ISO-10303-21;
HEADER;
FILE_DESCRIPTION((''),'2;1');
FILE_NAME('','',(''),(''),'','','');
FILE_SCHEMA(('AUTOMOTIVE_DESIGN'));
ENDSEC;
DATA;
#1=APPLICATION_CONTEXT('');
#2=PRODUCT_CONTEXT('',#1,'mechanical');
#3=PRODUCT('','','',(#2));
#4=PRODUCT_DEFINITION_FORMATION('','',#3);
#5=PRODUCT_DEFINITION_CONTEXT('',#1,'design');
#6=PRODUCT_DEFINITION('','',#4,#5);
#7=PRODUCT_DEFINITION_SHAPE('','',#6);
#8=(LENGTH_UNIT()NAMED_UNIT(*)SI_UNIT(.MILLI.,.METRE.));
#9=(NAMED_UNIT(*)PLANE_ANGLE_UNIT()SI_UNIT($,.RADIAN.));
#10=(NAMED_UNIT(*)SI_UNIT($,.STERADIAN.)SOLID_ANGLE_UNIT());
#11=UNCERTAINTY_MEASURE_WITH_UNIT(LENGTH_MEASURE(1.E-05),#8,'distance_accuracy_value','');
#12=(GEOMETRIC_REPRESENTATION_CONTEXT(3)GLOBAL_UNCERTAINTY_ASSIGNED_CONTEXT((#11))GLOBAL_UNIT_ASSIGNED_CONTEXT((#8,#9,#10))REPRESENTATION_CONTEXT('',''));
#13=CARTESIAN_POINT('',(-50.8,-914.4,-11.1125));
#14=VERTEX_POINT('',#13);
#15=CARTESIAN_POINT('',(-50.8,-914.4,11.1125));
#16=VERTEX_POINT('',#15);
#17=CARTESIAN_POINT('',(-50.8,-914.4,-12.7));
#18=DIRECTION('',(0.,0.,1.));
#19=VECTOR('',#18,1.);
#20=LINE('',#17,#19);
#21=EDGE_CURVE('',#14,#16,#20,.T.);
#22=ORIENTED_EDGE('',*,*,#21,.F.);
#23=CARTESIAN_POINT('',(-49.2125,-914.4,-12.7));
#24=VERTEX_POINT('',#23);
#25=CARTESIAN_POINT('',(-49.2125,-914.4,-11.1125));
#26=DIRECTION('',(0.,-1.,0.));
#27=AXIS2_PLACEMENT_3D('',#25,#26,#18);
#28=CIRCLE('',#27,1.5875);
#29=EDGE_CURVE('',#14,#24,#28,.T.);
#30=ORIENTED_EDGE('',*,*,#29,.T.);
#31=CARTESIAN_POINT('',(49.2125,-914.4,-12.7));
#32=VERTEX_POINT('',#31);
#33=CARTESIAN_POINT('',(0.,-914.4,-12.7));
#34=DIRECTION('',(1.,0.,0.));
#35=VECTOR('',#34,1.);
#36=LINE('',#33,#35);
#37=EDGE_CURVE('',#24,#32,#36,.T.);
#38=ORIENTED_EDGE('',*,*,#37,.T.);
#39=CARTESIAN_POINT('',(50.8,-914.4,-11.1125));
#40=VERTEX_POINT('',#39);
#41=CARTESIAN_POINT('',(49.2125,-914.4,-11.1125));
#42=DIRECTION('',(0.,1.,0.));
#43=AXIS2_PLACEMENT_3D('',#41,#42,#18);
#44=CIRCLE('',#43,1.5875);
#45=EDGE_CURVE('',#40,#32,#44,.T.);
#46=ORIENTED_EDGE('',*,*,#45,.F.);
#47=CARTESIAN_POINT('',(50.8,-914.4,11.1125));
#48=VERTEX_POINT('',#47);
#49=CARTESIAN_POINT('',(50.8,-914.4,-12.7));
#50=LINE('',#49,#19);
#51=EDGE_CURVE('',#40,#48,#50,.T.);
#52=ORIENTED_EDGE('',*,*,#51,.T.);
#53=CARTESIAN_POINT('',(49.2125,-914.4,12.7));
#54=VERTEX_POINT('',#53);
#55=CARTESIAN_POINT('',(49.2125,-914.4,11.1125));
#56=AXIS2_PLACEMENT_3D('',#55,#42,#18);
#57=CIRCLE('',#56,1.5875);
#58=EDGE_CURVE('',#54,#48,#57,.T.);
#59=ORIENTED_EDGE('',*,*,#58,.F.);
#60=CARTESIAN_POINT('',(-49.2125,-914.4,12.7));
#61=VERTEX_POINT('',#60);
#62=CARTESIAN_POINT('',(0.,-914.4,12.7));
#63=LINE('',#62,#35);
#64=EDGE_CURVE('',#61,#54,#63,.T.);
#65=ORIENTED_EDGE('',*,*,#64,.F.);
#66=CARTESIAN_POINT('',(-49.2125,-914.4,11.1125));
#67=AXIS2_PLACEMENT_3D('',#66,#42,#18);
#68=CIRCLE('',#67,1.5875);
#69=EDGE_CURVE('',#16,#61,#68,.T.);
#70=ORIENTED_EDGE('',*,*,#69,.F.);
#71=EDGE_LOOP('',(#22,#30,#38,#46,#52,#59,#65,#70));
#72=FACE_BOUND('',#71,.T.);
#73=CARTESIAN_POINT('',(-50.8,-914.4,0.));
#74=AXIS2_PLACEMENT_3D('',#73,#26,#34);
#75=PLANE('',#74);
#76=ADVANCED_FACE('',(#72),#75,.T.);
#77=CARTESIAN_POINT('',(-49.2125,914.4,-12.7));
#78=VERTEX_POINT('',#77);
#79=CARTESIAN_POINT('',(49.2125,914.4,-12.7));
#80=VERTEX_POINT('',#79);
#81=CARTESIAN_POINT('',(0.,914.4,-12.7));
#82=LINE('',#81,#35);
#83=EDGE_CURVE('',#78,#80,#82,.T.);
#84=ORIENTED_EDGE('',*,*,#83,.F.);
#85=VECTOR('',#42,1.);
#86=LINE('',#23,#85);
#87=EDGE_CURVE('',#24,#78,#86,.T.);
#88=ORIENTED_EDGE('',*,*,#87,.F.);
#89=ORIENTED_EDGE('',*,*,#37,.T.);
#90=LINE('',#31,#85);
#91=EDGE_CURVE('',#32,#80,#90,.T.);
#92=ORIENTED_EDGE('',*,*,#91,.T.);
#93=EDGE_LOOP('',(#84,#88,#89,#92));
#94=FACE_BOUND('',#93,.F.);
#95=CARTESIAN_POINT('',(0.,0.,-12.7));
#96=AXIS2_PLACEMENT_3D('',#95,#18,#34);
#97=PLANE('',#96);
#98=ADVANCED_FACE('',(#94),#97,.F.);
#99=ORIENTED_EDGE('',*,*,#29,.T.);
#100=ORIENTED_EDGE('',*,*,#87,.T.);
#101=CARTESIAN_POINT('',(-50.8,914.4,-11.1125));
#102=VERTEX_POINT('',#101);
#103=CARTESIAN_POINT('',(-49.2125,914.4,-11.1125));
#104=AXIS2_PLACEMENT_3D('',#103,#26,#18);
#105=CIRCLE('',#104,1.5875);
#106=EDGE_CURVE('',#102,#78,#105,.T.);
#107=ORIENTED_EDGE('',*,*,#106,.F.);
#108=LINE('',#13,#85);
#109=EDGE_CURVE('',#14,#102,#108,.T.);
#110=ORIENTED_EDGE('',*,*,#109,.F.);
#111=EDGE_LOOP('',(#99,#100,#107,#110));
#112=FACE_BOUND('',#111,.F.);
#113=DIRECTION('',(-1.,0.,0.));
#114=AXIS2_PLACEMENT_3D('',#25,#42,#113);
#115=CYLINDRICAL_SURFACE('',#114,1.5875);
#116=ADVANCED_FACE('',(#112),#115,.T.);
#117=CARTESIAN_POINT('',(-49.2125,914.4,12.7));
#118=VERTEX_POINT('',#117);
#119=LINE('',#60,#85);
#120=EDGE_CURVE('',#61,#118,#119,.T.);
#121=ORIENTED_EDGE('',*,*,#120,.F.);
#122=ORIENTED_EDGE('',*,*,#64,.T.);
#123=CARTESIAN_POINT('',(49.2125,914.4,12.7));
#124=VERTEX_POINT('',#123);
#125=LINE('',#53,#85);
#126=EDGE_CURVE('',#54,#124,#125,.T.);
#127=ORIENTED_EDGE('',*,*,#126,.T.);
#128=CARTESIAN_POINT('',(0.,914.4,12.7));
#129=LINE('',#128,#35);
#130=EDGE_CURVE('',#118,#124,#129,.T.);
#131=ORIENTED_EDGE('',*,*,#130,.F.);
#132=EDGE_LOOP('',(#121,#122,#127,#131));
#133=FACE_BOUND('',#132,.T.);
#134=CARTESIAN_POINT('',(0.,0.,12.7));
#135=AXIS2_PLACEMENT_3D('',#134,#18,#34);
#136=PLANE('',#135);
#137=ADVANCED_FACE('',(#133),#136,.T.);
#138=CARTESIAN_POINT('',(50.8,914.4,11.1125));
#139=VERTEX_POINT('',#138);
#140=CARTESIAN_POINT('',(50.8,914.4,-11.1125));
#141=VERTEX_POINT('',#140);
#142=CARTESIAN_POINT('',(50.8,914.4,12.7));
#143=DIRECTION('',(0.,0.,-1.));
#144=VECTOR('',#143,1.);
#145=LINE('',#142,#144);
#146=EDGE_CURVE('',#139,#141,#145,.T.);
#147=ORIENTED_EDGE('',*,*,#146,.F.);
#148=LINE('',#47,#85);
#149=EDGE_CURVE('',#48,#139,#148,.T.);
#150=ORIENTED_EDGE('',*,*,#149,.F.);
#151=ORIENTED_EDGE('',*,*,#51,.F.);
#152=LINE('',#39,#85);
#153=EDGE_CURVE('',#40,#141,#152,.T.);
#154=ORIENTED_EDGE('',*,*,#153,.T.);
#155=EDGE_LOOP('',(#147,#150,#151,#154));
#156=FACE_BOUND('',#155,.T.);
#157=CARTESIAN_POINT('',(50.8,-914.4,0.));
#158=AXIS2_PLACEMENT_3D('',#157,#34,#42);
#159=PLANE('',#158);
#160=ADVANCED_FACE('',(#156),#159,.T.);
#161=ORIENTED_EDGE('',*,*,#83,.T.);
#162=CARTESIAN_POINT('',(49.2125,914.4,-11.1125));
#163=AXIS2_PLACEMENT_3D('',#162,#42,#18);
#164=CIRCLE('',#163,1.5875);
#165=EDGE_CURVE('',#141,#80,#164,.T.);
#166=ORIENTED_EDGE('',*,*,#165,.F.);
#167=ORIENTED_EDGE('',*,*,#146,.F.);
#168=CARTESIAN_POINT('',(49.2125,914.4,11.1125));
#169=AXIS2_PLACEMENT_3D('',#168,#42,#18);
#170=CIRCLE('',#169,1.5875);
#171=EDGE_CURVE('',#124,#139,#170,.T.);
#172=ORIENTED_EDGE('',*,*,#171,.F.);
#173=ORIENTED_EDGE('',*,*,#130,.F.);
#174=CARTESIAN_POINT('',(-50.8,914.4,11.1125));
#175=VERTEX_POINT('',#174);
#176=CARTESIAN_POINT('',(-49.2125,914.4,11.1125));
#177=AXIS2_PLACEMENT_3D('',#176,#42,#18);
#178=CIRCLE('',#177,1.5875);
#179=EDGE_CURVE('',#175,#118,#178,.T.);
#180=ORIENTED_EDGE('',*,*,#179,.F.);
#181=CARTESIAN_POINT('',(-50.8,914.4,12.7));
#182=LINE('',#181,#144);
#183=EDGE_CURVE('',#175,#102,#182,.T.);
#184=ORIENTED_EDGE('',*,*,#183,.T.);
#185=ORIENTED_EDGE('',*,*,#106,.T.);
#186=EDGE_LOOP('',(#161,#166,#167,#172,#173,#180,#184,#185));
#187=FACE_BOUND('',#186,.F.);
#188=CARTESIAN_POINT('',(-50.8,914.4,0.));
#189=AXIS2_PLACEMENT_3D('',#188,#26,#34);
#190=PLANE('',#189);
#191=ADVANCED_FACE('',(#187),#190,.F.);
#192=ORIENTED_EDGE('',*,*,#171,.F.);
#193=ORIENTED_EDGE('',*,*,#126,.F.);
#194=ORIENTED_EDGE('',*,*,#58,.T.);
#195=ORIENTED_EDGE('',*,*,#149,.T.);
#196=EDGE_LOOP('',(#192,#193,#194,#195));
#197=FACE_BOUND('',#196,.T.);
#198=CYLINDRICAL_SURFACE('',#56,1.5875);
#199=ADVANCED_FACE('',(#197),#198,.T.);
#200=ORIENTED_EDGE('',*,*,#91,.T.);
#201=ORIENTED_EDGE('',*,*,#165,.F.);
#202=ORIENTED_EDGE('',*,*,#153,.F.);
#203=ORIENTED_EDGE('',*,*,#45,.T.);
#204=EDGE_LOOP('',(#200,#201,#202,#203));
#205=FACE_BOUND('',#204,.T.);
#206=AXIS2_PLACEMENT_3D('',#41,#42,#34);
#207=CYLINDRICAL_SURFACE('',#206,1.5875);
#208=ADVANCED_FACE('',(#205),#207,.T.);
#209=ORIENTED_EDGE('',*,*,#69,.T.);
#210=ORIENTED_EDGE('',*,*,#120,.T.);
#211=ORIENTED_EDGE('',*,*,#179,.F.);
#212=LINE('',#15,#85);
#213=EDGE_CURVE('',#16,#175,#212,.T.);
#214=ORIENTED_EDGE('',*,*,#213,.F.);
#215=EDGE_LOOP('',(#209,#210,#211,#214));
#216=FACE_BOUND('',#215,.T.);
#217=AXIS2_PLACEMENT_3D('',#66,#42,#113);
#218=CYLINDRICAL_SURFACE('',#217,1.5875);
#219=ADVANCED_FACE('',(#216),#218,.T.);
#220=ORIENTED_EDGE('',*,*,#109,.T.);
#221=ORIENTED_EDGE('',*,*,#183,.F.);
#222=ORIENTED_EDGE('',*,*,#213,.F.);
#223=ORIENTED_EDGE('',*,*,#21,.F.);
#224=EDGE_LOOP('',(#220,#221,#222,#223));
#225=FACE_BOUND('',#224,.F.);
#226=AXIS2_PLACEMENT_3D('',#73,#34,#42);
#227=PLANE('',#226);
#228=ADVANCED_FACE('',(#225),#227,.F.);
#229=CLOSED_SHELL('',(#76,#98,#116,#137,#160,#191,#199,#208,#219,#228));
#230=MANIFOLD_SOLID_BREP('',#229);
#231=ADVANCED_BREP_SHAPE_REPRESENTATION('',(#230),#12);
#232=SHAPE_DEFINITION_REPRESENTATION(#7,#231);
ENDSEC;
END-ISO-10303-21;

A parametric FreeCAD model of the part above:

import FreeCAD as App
import Part
import Sketcher
from FreeCAD import Vector
Q = App.Units.Quantity


def edges_at(feature, points):
    """Names of the edges that pass closest to the given points."""
    edges = feature.Shape.Edges
    near = lambda p: min(range(len(edges)), key=lambda i: edges[i].distToShape(Part.Vertex(*p))[0])
    return sorted({f"Edge{near(p) + 1}" for p in points})


def add_polygon(sketch, points):
    """Adds a closed chain of lines whose ends are joined by coincident constraints."""
    first, n = sketch.GeometryCount, len(points)
    for a, b in zip(points, points[1:] + points[:1]):
        sketch.addGeometry(Part.LineSegment(App.Vector(*a, 0), App.Vector(*b, 0)), False)
    for i in range(n):
        sketch.addConstraint(Sketcher.Constraint("Coincident", first + i, 2, first + (i + 1) % n, 1))

doc = App.newDocument("Part")
body = doc.addObject("PartDesign::Body", "Body")

# Sketch on XY plane
sketch1 = doc.addObject("Sketcher::SketchObject", "Sketch")
body.addObject(sketch1)
sketch1.AttachmentSupport = (doc.XY_Plane, [""])
sketch1.MapMode = "FlatFace"
add_polygon(sketch1, [(-50.8, 914.4), (-50.8, -914.4), (50.8, -914.4), (50.8, 914.4)])  # lines 0-3
sketch1.addConstraint(Sketcher.Constraint("Vertical", 0))
sketch1.addConstraint(Sketcher.Constraint("Horizontal", 1))
sketch1.addConstraint(Sketcher.Constraint("Vertical", 2))
sketch1.addConstraint(Sketcher.Constraint("Horizontal", 3))
sketch1.addConstraint(Sketcher.Constraint("Symmetric", 0, 2, 2, 2, -1, 1))
sketch1.addConstraint(Sketcher.Constraint("DistanceX", 1, 1, 1, 2, Q("4 in")))
sketch1.addConstraint(Sketcher.Constraint("DistanceY", 0, 2, 0, 1, Q("72 in")))
pad1 = doc.addObject("PartDesign::Pad", "Pad")
body.addObject(pad1)
pad1.Profile = sketch1
pad1.Length = Q("1 in")
pad1.Midplane = True
doc.recompute()

fillet = doc.addObject("PartDesign::Fillet", "Fillet")
body.addObject(fillet)
fillet.Base = (pad1, edges_at(pad1, [
    (50.8, 0, 12.7),
    (-50.8, 0, 12.7),
    (50.8, 0, -12.7),
    (-50.8, 0, -12.7),
]))
fillet.Radius = Q("0.0625 in")

doc.recompute()
